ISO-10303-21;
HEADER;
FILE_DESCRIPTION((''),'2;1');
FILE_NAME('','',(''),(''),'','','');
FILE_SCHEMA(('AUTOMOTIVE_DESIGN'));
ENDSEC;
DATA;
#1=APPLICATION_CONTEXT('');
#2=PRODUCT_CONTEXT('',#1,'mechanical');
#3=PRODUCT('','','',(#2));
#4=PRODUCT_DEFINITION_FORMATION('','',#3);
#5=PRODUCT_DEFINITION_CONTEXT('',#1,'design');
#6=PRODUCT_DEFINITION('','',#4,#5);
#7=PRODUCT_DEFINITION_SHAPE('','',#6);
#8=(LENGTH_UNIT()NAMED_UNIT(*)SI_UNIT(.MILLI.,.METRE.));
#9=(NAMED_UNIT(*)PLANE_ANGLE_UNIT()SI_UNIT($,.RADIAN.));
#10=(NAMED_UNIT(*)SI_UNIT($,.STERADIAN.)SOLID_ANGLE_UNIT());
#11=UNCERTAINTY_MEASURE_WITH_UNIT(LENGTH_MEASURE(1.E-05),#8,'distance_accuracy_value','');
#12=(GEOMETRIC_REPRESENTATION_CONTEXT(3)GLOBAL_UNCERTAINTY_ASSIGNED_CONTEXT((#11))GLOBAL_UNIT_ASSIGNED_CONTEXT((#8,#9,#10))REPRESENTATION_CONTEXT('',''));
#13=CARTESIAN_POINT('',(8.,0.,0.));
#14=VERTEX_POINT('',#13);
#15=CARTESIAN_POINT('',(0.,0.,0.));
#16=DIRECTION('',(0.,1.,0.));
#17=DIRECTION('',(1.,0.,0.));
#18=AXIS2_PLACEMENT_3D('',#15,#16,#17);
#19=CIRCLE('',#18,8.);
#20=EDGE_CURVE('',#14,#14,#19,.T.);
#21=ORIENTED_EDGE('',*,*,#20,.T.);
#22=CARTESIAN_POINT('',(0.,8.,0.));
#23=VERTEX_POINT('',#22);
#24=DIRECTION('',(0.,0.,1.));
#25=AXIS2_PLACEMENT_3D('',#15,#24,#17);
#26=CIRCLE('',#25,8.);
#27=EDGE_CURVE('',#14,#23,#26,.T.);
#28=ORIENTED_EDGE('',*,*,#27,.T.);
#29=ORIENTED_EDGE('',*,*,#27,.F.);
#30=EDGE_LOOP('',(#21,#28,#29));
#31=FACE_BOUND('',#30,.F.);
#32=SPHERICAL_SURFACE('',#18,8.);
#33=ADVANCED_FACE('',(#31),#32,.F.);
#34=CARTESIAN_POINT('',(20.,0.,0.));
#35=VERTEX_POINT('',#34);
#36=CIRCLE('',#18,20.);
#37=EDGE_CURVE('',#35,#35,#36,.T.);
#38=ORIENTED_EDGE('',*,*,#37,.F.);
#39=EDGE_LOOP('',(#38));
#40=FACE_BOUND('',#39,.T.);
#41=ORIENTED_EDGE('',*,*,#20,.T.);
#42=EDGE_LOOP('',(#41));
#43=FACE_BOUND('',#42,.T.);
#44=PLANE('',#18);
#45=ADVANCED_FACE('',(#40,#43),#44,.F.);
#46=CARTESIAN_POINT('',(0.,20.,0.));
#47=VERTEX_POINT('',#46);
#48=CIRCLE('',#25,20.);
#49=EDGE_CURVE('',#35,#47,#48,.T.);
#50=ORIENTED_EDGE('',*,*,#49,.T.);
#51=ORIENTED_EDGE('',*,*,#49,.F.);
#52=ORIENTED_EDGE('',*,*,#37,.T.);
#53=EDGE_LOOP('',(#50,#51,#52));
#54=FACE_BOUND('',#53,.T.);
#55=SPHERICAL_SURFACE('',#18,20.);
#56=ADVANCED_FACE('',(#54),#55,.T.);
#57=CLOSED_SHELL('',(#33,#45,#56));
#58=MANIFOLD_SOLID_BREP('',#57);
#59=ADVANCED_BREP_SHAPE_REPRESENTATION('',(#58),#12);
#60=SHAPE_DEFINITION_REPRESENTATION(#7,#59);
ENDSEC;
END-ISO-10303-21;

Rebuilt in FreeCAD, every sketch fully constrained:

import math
import FreeCAD as App
import Part
import Sketcher

V = App.Vector
Q = App.Units.Quantity


def faces_at(feature, points):
    """Names of the faces that lie closest to the given points."""
    faces = feature.Shape.Faces
    near = lambda p: min(range(len(faces)), key=lambda i: faces[i].distToShape(Part.Vertex(*p))[0])
    return sorted({f"Face{near(p) + 1}" for p in points})

doc = App.newDocument("Part")
body = doc.addObject("PartDesign::Body", "Body")

# Sketch on XY plane
sketch1 = body.newObject("Sketcher::SketchObject", "Sketch")
sketch1.AttachmentSupport = (doc.getObject("XY_Plane"), [""])
sketch1.MapMode = "FlatFace"
sketch1.addGeometry([
    Part.LineSegment(V(0, 20, 0), V(0, 0, 0)),
    Part.LineSegment(V(0, 0, 0), V(20, 0, 0)),
    Part.ArcOfCircle(Part.Circle(V(0, 0, 0), V(0, 0, 1), 20), math.radians(0), math.radians(90)),
], False)
sketch1.addConstraint([
    Sketcher.Constraint("Coincident", 0, 2, 1, 1),
    Sketcher.Constraint("Coincident", 1, 2, 2, 1),
    Sketcher.Constraint("Coincident", 2, 2, 0, 1),
    Sketcher.Constraint("Vertical", 0),
    Sketcher.Constraint("Horizontal", 1),
    Sketcher.Constraint("Coincident", 2, 3, -1, 1),
    Sketcher.Constraint("Coincident", 0, 2, -1, 1),
    Sketcher.Constraint("Radius", 2, Q("20 mm")),
])
revolution = body.newObject("PartDesign::Revolution", "Revolution")
revolution.Profile = sketch1
revolution.ReferenceAxis = (sketch1, ["V_Axis"])
revolution.Angle = 360
doc.recompute()

thickness = body.newObject("PartDesign::Thickness", "Thickness")
thickness.Base = (revolution, faces_at(revolution, [(-2.364, 0, -6.233)]))
thickness.Value = 12
thickness.Reversed = True
thickness.Join = "Intersection"

doc.recompute()
